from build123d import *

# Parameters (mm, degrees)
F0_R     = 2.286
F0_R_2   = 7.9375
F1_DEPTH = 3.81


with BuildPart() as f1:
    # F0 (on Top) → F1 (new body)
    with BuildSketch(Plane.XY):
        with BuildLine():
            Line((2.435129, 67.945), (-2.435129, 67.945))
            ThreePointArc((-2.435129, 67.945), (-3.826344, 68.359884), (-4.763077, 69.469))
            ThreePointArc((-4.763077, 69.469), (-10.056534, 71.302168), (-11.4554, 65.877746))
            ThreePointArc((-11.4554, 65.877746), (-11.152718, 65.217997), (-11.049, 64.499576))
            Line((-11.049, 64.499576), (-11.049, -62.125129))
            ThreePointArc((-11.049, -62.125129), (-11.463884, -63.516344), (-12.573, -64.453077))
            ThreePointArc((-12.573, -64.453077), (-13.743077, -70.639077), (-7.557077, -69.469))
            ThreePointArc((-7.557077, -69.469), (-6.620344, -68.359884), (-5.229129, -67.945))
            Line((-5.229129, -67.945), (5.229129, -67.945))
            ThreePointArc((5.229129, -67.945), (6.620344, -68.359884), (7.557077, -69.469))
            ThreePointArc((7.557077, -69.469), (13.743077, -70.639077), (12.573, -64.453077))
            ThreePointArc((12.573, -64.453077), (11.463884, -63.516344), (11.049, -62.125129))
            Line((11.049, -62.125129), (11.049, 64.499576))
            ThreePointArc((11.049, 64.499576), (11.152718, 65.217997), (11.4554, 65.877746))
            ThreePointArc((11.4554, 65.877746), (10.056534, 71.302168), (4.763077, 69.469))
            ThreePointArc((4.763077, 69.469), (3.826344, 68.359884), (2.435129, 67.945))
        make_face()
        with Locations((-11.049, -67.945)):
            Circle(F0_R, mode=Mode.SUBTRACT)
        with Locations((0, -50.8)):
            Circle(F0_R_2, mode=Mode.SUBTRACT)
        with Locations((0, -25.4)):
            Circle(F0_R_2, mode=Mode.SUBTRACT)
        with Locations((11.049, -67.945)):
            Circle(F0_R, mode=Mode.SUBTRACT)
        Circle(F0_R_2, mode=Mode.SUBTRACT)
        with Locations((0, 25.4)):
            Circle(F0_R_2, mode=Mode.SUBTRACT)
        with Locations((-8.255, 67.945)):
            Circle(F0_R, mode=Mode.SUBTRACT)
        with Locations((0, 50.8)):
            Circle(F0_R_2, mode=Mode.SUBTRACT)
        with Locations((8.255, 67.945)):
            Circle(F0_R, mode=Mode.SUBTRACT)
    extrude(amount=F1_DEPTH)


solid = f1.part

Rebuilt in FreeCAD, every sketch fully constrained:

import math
import FreeCAD as App
import Part
import Sketcher
from FreeCAD import Vector
Q = App.Units.Quantity

doc = App.newDocument("Part")
body = doc.addObject("PartDesign::Body", "Body")

sketch1 = body.newObject("Sketcher::SketchObject", "Sketch")
sketch1.AttachmentSupport = (doc.getObject("XY_Plane"), [""])
sketch1.MapMode = "FlatFace"
sketch1.addGeometry(Part.LineSegment(Vector(2.4, 67.9, 0), Vector(-2.4, 67.9, 0)), False)
sketch1.addGeometry(Part.ArcOfCircle(Part.Circle(Vector(-2.4, 70.5, 0), Vector(0, 0, 1), 2.5), math.radians(-156), math.radians(-90)), False)
sketch1.addGeometry(Part.ArcOfCircle(Part.Circle(Vector(-8.3, 67.9, 0), Vector(0, 0, 1), 3.8), math.radians(24), math.radians(213)), False)
sketch1.addGeometry(Part.ArcOfCircle(Part.Circle(Vector(-13.6, 64.5, 0), Vector(0, 0, 1), 2.5), math.radians(0), math.radians(33)), False)
sketch1.addGeometry(Part.LineSegment(Vector(-11, 64.5, 0), Vector(-11, -62.1, 0)), False)
sketch1.addGeometry(Part.ArcOfCircle(Part.Circle(Vector(-13.6, -62.1, 0), Vector(0, 0, 1), 2.5), math.radians(-66), math.radians(0)), False)
sketch1.addGeometry(Part.ArcOfCircle(Part.Circle(Vector(-11, -67.9, 0), Vector(0, 0, 1), 3.8), math.radians(114), math.radians(336)), False)
sketch1.addGeometry(Part.ArcOfCircle(Part.Circle(Vector(-5.2, -70.5, 0), Vector(0, 0, 1), 2.5), math.radians(90), math.radians(156)), False)
sketch1.addGeometry(Part.LineSegment(Vector(-5.2, -67.9, 0), Vector(5.2, -67.9, 0)), False)
sketch1.addGeometry(Part.ArcOfCircle(Part.Circle(Vector(5.2, -70.5, 0), Vector(0, 0, 1), 2.5), math.radians(24), math.radians(90)), False)
sketch1.addGeometry(Part.ArcOfCircle(Part.Circle(Vector(11, -67.9, 0), Vector(0, 0, 1), 3.8), math.radians(-156), math.radians(66)), False)
sketch1.addGeometry(Part.ArcOfCircle(Part.Circle(Vector(13.6, -62.1, 0), Vector(0, 0, 1), 2.5), math.radians(-180), math.radians(-114)), False)
sketch1.addGeometry(Part.LineSegment(Vector(11, -62.1, 0), Vector(11, 64.5, 0)), False)
sketch1.addGeometry(Part.ArcOfCircle(Part.Circle(Vector(13.6, 64.5, 0), Vector(0, 0, 1), 2.5), math.radians(147), math.radians(180)), False)
sketch1.addGeometry(Part.ArcOfCircle(Part.Circle(Vector(8.3, 67.9, 0), Vector(0, 0, 1), 3.8), math.radians(-33), math.radians(156)), False)
sketch1.addGeometry(Part.ArcOfCircle(Part.Circle(Vector(2.4, 70.5, 0), Vector(0, 0, 1), 2.5), math.radians(-90), math.radians(-24)), False)
sketch1.addGeometry(Part.Circle(Vector(-11, -67.9, 0), Vector(0, 0, 1), 2.3), False)
sketch1.addGeometry(Part.Circle(Vector(0, -50.8, 0), Vector(0, 0, 1), 7.9), False)
sketch1.addGeometry(Part.Circle(Vector(11, -67.9, 0), Vector(0, 0, 1), 2.3), False)
sketch1.addGeometry(Part.Circle(Vector(0, -25.4, 0), Vector(0, 0, 1), 7.9), False)
sketch1.addGeometry(Part.Circle(Vector(-8.3, 67.9, 0), Vector(0, 0, 1), 2.3), False)
sketch1.addGeometry(Part.Circle(Vector(0, 0, 0), Vector(0, 0, 1), 7.9), False)
sketch1.addGeometry(Part.Circle(Vector(0, 25.4, 0), Vector(0, 0, 1), 7.9), False)
sketch1.addGeometry(Part.Circle(Vector(0, 50.8, 0), Vector(0, 0, 1), 7.9), False)
sketch1.addGeometry(Part.Circle(Vector(8.3, 67.9, 0), Vector(0, 0, 1), 2.3), False)
sketch1.addConstraint(Sketcher.Constraint("Tangent", 0, 2, 1, 2))
sketch1.addConstraint(Sketcher.Constraint("Tangent", 1, 1, 2, 1))
sketch1.addConstraint(Sketcher.Constraint("Tangent", 2, 2, 3, 2))
sketch1.addConstraint(Sketcher.Constraint("Tangent", 3, 1, 4, 1))
sketch1.addConstraint(Sketcher.Constraint("Tangent", 4, 2, 5, 2))
sketch1.addConstraint(Sketcher.Constraint("Tangent", 5, 1, 6, 1))
sketch1.addConstraint(Sketcher.Constraint("Tangent", 6, 2, 7, 2))
sketch1.addConstraint(Sketcher.Constraint("Tangent", 7, 1, 8, 1))
sketch1.addConstraint(Sketcher.Constraint("Tangent", 8, 2, 9, 2))
sketch1.addConstraint(Sketcher.Constraint("Tangent", 9, 1, 10, 1))
sketch1.addConstraint(Sketcher.Constraint("Tangent", 10, 2, 11, 2))
sketch1.addConstraint(Sketcher.Constraint("Tangent", 11, 1, 12, 1))
sketch1.addConstraint(Sketcher.Constraint("Tangent", 12, 2, 13, 2))
sketch1.addConstraint(Sketcher.Constraint("Tangent", 13, 1, 14, 1))
sketch1.addConstraint(Sketcher.Constraint("Tangent", 14, 2, 15, 2))
sketch1.addConstraint(Sketcher.Constraint("Tangent", 15, 1, 0, 1))
sketch1.addConstraint(Sketcher.Constraint("Horizontal", 0))
sketch1.addConstraint(Sketcher.Constraint("Vertical", 4))
sketch1.addConstraint(Sketcher.Constraint("Horizontal", 8))
sketch1.addConstraint(Sketcher.Constraint("Vertical", 12))
sketch1.addConstraint(Sketcher.Constraint("Coincident", 21, 3, -1, 1))
sketch1.addConstraint(Sketcher.Constraint("Coincident", 16, 3, 6, 3))
sketch1.addConstraint(Sketcher.Constraint("Coincident", 18, 3, 10, 3))
sketch1.addConstraint(Sketcher.Constraint("Coincident", 20, 3, 2, 3))
sketch1.addConstraint(Sketcher.Constraint("Coincident", 24, 3, 14, 3))
sketch1.addConstraint(Sketcher.Constraint("Equal", 1, 5))
sketch1.addConstraint(Sketcher.Constraint("Equal", 2, 6))
sketch1.addConstraint(Sketcher.Constraint("Equal", 5, 7))
sketch1.addConstraint(Sketcher.Constraint("Equal", 7, 9))
sketch1.addConstraint(Sketcher.Constraint("Equal", 6, 10))
sketch1.addConstraint(Sketcher.Constraint("Equal", 9, 11))
sketch1.addConstraint(Sketcher.Constraint("Equal", 3, 13))
sketch1.addConstraint(Sketcher.Constraint("Equal", 10, 14))
sketch1.addConstraint(Sketcher.Constraint("Equal", 11, 15))
sketch1.addConstraint(Sketcher.Constraint("Equal", 16, 18))
sketch1.addConstraint(Sketcher.Constraint("Equal", 17, 19))
sketch1.addConstraint(Sketcher.Constraint("Equal", 18, 20))
sketch1.addConstraint(Sketcher.Constraint("Equal", 19, 21))
sketch1.addConstraint(Sketcher.Constraint("Equal", 21, 22))
sketch1.addConstraint(Sketcher.Constraint("Equal", 22, 23))
sketch1.addConstraint(Sketcher.Constraint("Equal", 20, 24))
sketch1.addConstraint(Sketcher.Constraint("Symmetric", 19, 3, 22, 3, -1, 1))
sketch1.addConstraint(Sketcher.Constraint("Symmetric", 17, 3, 23, 3, -1, 1))
sketch1.addConstraint(Sketcher.Constraint("Symmetric", 6, 3, 10, 3, -2))
sketch1.addConstraint(Sketcher.Constraint("Symmetric", 3, 3, 13, 3, -2))
sketch1.addConstraint(Sketcher.Constraint("PointOnObject", 17, 3, -2))
sketch1.addConstraint(Sketcher.Constraint("PointOnObject", 19, 3, -2))
sketch1.addConstraint(Sketcher.Constraint("Horizontal", 2, 3, 14, 3))
sketch1.addConstraint(Sketcher.Constraint("Horizontal", 24, 3, 0, 2))
sketch1.addConstraint(Sketcher.Constraint("Horizontal", 18, 3, 7, 1))
sketch1.addConstraint(Sketcher.Constraint("Vertical", 16, 3, 3, 1))
sketch1.addConstraint(Sketcher.Constraint("Radius", 1, Q("0.1000001 in")))
sketch1.addConstraint(Sketcher.Constraint("Diameter", 16, Q("0.18 in")))
sketch1.addConstraint(Sketcher.Constraint("Radius", 2, Q("0.15 in")))
sketch1.addConstraint(Sketcher.Constraint("Diameter", 17, Q("0.625 in")))
sketch1.addConstraint(Sketcher.Constraint("DistanceY", 17, 3, -1, 1, Q("2 in")))
sketch1.addConstraint(Sketcher.Constraint("DistanceY", 19, 3, -1, 1, Q("1 in")))
sketch1.addConstraint(Sketcher.Constraint("DistanceX", 5, 3, 2, 3, Q("0.2100001 in")))
sketch1.addConstraint(Sketcher.Constraint("DistanceY", 6, 3, 2, 3, Q("5.35 in")))
sketch1.addConstraint(Sketcher.Constraint("DistanceX", 6, 3, 10, 3, Q("0.87 in")))
sketch1.addConstraint(Sketcher.Constraint("DistanceY", -1, 1, 1, 3, Q("2.7750001 in")))
sketch1.addConstraint(Sketcher.Constraint("DistanceX", 2, 2, -1, 1, Q("0.451 in")))
pad1 = body.newObject("PartDesign::Pad", "Pad")
pad1.Profile = sketch1
pad1.Length = Q("0.15 in")

doc.recompute()
